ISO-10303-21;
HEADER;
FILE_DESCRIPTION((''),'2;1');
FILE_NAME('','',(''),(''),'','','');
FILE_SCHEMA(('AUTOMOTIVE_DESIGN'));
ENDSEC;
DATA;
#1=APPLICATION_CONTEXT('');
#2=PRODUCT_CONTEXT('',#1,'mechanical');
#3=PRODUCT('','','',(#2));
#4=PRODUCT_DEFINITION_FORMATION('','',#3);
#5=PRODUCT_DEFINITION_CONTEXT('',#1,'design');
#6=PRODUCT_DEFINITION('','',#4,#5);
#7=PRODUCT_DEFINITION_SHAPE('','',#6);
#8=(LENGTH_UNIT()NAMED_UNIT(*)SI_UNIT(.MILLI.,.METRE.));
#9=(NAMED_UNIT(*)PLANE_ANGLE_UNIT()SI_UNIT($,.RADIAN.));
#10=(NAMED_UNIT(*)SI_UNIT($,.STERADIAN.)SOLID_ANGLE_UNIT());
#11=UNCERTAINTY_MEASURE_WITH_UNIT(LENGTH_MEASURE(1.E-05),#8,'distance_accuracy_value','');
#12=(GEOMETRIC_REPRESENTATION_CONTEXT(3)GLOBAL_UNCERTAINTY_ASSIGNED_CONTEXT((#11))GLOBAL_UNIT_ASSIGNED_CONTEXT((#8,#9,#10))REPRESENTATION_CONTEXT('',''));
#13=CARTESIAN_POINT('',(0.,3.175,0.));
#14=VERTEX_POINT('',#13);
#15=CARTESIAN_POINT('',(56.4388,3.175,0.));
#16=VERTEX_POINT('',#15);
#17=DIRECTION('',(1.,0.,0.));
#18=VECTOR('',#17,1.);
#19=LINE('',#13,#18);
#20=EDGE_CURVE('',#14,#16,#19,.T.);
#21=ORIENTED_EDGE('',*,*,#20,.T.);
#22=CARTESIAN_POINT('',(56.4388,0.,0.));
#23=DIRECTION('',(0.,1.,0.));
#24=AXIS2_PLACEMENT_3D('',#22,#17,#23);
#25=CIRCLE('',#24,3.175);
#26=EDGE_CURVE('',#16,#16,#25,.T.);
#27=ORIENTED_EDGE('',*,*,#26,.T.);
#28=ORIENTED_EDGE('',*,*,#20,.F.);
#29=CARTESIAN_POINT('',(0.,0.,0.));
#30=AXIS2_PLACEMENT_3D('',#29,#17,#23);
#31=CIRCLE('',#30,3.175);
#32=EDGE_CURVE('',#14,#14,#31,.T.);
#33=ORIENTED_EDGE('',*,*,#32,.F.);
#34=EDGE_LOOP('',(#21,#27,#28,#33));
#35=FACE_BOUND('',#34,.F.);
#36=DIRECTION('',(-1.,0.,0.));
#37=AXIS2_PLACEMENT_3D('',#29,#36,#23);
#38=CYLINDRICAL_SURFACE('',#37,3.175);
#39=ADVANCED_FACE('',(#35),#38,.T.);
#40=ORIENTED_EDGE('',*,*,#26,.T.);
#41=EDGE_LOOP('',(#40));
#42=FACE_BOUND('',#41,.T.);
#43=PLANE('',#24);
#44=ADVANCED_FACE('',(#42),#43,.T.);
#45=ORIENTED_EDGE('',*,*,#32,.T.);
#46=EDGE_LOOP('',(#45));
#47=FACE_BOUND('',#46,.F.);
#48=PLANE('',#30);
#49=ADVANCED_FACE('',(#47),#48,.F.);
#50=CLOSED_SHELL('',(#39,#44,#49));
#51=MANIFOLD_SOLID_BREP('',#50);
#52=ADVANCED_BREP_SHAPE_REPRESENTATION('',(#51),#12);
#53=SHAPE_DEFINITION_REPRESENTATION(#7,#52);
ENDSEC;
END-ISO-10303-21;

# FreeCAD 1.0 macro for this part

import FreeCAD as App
import Part
import Sketcher
from FreeCAD import Vector
Q = App.Units.Quantity

doc = App.newDocument("Part")
params = doc.addObject("Spreadsheet::Sheet", "Params")
for row, (alias, value) in enumerate([
    ("sketch1_diameter", "0.25 in"),
    ("pad1_length", "2.222 in"),
], start=1):
    params.set(f"A{row}", alias)
    params.set(f"B{row}", "=" + value)
    params.setAlias(f"B{row}", alias)

body = doc.addObject("PartDesign::Body", "Body")

# Sketch on YZ plane
sketch1 = body.newObject("Sketcher::SketchObject", "Sketch")
sketch1.AttachmentSupport = (doc.getObject("YZ_Plane"), [""])
sketch1.MapMode = "FlatFace"
sketch1.addGeometry(Part.Circle(Vector(0, 0, 0), Vector(0, 0, 1), 3.2), False)
sketch1.addConstraint([
    Sketcher.Constraint("Coincident", 0, 3, -1, 1),
    Sketcher.Constraint("Diameter", 0, Q("0.25 in")),
])
sketch1.setExpression("Constraints[1]", "Params.sketch1_diameter")
pad1 = body.newObject("PartDesign::Pad", "Pad")
pad1.Profile = sketch1
pad1.setExpression("Length", "Params.pad1_length")

doc.recompute()
